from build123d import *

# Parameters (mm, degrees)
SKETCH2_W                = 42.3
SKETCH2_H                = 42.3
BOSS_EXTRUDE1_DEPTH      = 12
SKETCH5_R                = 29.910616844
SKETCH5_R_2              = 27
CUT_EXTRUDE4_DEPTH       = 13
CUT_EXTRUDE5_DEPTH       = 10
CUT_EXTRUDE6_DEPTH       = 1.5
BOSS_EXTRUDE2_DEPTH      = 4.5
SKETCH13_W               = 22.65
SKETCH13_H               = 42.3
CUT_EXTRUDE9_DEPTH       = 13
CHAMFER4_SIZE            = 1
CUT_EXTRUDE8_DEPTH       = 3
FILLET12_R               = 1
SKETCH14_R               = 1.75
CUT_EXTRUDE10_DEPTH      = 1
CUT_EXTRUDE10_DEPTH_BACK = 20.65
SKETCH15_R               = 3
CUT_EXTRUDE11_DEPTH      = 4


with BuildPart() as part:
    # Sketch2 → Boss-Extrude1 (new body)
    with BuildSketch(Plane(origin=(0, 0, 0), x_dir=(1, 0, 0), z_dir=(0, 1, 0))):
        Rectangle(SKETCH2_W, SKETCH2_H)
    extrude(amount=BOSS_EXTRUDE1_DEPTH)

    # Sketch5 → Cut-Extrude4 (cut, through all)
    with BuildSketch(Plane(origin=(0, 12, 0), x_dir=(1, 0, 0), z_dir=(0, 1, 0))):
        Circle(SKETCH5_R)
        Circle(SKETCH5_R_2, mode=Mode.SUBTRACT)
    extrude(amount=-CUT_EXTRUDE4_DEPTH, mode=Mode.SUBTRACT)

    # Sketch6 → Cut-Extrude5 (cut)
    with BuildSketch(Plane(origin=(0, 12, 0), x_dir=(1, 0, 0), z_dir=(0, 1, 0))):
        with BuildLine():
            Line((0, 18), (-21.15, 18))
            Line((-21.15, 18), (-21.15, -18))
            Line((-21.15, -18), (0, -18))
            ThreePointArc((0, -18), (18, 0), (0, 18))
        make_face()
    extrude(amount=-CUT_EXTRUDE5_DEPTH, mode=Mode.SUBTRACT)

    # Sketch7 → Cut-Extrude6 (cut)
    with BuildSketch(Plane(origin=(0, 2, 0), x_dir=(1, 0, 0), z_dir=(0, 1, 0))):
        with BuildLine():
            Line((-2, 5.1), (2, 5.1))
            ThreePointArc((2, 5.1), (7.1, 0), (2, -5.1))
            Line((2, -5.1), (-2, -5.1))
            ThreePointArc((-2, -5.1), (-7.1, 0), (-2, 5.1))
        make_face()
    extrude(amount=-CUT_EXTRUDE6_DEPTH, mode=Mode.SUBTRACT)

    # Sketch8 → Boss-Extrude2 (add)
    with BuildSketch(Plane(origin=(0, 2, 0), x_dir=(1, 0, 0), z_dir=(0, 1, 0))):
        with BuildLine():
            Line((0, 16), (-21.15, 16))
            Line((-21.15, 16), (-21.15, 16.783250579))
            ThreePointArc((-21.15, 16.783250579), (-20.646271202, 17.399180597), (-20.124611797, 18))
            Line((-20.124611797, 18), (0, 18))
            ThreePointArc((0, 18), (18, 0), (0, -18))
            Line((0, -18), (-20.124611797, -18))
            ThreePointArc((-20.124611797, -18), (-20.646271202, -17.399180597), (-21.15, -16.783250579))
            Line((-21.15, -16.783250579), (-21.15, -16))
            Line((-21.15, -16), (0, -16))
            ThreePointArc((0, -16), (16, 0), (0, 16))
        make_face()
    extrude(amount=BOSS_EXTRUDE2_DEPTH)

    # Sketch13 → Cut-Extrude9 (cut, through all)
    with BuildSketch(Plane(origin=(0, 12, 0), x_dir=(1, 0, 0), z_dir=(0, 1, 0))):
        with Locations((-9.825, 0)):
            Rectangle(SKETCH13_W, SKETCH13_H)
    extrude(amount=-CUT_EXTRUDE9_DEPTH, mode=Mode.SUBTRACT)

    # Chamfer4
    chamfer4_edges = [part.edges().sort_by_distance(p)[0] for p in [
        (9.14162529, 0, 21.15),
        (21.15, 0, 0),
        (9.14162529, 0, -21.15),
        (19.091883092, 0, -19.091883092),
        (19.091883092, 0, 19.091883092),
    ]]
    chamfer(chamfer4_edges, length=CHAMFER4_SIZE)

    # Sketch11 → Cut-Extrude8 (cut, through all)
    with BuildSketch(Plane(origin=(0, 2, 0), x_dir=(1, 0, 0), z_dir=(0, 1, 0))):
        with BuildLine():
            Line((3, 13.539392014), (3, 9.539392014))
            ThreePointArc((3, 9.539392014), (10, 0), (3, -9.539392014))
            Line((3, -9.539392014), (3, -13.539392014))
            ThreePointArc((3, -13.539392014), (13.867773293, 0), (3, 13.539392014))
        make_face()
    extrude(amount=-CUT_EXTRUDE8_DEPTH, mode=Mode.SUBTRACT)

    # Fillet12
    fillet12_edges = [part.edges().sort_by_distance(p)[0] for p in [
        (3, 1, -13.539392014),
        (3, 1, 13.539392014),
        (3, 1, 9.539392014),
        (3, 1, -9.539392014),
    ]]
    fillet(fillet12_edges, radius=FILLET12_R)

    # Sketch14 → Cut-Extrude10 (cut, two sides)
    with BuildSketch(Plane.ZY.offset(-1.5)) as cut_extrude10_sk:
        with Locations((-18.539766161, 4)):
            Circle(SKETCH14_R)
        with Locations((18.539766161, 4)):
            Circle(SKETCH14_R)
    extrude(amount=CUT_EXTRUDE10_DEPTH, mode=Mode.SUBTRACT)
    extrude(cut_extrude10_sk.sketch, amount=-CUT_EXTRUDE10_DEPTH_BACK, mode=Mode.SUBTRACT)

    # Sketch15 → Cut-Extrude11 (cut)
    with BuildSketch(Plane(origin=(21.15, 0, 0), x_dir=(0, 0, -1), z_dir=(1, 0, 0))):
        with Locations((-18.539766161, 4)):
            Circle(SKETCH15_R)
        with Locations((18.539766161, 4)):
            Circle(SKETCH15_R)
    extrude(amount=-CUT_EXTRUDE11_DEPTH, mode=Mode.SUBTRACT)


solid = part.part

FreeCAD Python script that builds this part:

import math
import FreeCAD as App
import Part
import Sketcher
Q = App.Units.Quantity


def edges_at(feature, points):
    """Names of the edges that pass closest to the given points."""
    edges = feature.Shape.Edges
    near = lambda p: min(range(len(edges)), key=lambda i: edges[i].distToShape(Part.Vertex(*p))[0])
    return sorted({f"Edge{near(p) + 1}" for p in points})


def add_polygon(sketch, points):
    """Adds a closed chain of lines whose ends are joined by coincident constraints."""
    first, n = sketch.GeometryCount, len(points)
    for a, b in zip(points, points[1:] + points[:1]):
        sketch.addGeometry(Part.LineSegment(App.Vector(*a, 0), App.Vector(*b, 0)), False)
    for i in range(n):
        sketch.addConstraint(Sketcher.Constraint("Coincident", first + i, 2, first + (i + 1) % n, 1))

doc = App.newDocument("Part")
params = doc.addObject("Spreadsheet::Sheet", "Params")
for row, (alias, value) in enumerate([
    ("sketch1_width", "42.3 mm"),
    ("pad1_length", "12 mm"),
    ("sketch2_diameter", "54 mm"),
    ("sketch3_radius", "18 mm"),
    ("sketch3_width", "21.15 mm"),
    ("pocket2_length", "10 mm"),
    ("sketch4_radius", "5.1 mm"),
    ("sketch4_width", "4 mm"),
    ("pocket3_length", "1.5 mm"),
    ("sketch5_radius", "16 mm"),
    ("sketch5_radius2", "27 mm"),
    ("sketch5_radius3", "18 mm"),
    ("sketch5_width", "21.15 mm"),
    ("pad2_length", "4.5 mm"),
    ("sketch6_height", "42.3 mm"),
    ("sketch6_width", "22.65 mm"),
    ("chamfer_size", "1 mm"),
    ("sketch7_radius", "10 mm"),
    ("sketch7_height", "4 mm"),
    ("fillet_radius", "1 mm"),
    ("sketch8_diameter", "3.5 mm"),
    ("sketch9_diameter", "6 mm"),
    ("pocket7_length", "4 mm"),
], start=1):
    params.set(f"A{row}", alias)
    params.set(f"B{row}", "=" + value)
    params.setAlias(f"B{row}", alias)

body = doc.addObject("PartDesign::Body", "Body")

# Sketch on XZ plane
sketch1 = body.newObject("Sketcher::SketchObject", "Sketch")
sketch1.AttachmentSupport = (doc.getObject("XZ_Plane"), [""])
sketch1.MapMode = "FlatFace"
add_polygon(sketch1, [(-21.15, -21.15), (-21.15, 21.15), (21.15, 21.15), (21.15, -21.15)])  # lines 0-3
sketch1.addConstraint([
    Sketcher.Constraint("Vertical", 0),
    Sketcher.Constraint("Horizontal", 1),
    Sketcher.Constraint("Vertical", 2),
    Sketcher.Constraint("Horizontal", 3),
    Sketcher.Constraint("Symmetric", 0, 2, 2, 2, -1, 1),
    Sketcher.Constraint("Equal", 3, 0),
    Sketcher.Constraint("DistanceX", 1, 1, 1, 2, Q("42.3 mm")),
])
sketch1.setExpression("Constraints[10]", "Params.sketch1_width")
pad1 = body.newObject("PartDesign::Pad", "Pad")
pad1.Profile = sketch1
pad1.setExpression("Length", "Params.pad1_length")
pad1.Reversed = True

# Sketch on XZ plane
sketch2 = body.newObject("Sketcher::SketchObject", "Sketch001")
sketch2.AttachmentSupport = (doc.getObject("XZ_Plane"), [""])
sketch2.MapMode = "FlatFace"
sketch2.AttachmentOffset = App.Placement(App.Vector(0, 0, -12), App.Rotation())
sketch2.addGeometry([
    Part.Circle(App.Vector(0, 0, 0), App.Vector(0, 0, 1), 29.910617),
    Part.Circle(App.Vector(0, 0, 0), App.Vector(0, 0, 1), 27),
], False)
sketch2.addConstraint([
    Sketcher.Constraint("Coincident", 0, 3, -1, 1),
    Sketcher.Constraint("Coincident", 1, 3, -1, 1),
    Sketcher.Constraint("Diameter", 1, Q("54 mm")),
    Sketcher.Constraint("Diameter", 0, Q("59.821234 mm")),
])
sketch2.setExpression("Constraints[2]", "Params.sketch2_diameter")
pocket1 = body.newObject("PartDesign::Pocket", "Pocket")
pocket1.Profile = sketch2
pocket1.Type = "ThroughAll"
pocket1.Reversed = True

# Sketch on XZ plane
sketch3 = body.newObject("Sketcher::SketchObject", "Sketch002")
sketch3.AttachmentSupport = (doc.getObject("XZ_Plane"), [""])
sketch3.MapMode = "FlatFace"
sketch3.AttachmentOffset = App.Placement(App.Vector(0, 0, -12), App.Rotation())
sketch3.addGeometry([
    Part.LineSegment(App.Vector(0, -18, 0), App.Vector(-21.15, -18, 0)),
    Part.LineSegment(App.Vector(-21.15, -18, 0), App.Vector(-21.15, 18, 0)),
    Part.LineSegment(App.Vector(-21.15, 18, 0), App.Vector(0, 18, 0)),
    Part.ArcOfCircle(Part.Circle(App.Vector(0, 0, 0), App.Vector(0, 0, 1), 18), math.radians(-90), math.radians(90)),
], False)
sketch3.addConstraint([
    Sketcher.Constraint("Coincident", 0, 2, 1, 1),
    Sketcher.Constraint("Coincident", 1, 2, 2, 1),
    Sketcher.Constraint("Tangent", 2, 2, 3, 2),
    Sketcher.Constraint("Tangent", 3, 1, 0, 1),
    Sketcher.Constraint("Horizontal", 0),
    Sketcher.Constraint("Vertical", 1),
    Sketcher.Constraint("Horizontal", 2),
    Sketcher.Constraint("Coincident", 3, 3, -1, 1),
    Sketcher.Constraint("Radius", 3, Q("18 mm")),
    Sketcher.Constraint("DistanceX", 0, 2, 0, 1, Q("21.15 mm")),
])
sketch3.setExpression("Constraints[8]", "Params.sketch3_radius")
sketch3.setExpression("Constraints[9]", "Params.sketch3_width")
pocket2 = body.newObject("PartDesign::Pocket", "Pocket001")
pocket2.Profile = sketch3
pocket2.setExpression("Length", "Params.pocket2_length")
pocket2.Reversed = True

# Sketch on XZ plane
sketch4 = body.newObject("Sketcher::SketchObject", "Sketch003")
sketch4.AttachmentSupport = (doc.getObject("XZ_Plane"), [""])
sketch4.MapMode = "FlatFace"
sketch4.AttachmentOffset = App.Placement(App.Vector(0, 0, -2), App.Rotation())
sketch4.addGeometry([
    Part.LineSegment(App.Vector(2, -5.1, 0), App.Vector(-2, -5.1, 0)),
    Part.ArcOfCircle(Part.Circle(App.Vector(-2, 0, 0), App.Vector(0, 0, 1), 5.1), math.radians(90), math.radians(270)),
    Part.LineSegment(App.Vector(-2, 5.1, 0), App.Vector(2, 5.1, 0)),
    Part.ArcOfCircle(Part.Circle(App.Vector(2, 0, 0), App.Vector(0, 0, 1), 5.1), math.radians(-90), math.radians(90)),
], False)
sketch4.addConstraint([
    Sketcher.Constraint("Tangent", 0, 2, 1, 2),
    Sketcher.Constraint("Tangent", 1, 1, 2, 1),
    Sketcher.Constraint("Tangent", 2, 2, 3, 2),
    Sketcher.Constraint("Tangent", 3, 1, 0, 1),
    Sketcher.Constraint("Horizontal", 0),
    Sketcher.Constraint("Horizontal", 2),
    Sketcher.Constraint("Symmetric", 1, 3, 3, 3, -1, 1),
    Sketcher.Constraint("Radius", 1, Q("5.1 mm")),
    Sketcher.Constraint("DistanceX", 0, 2, 0, 1, Q("4 mm")),
])
sketch4.setExpression("Constraints[7]", "Params.sketch4_radius")
sketch4.setExpression("Constraints[8]", "Params.sketch4_width")
pocket3 = body.newObject("PartDesign::Pocket", "Pocket002")
pocket3.Profile = sketch4
pocket3.setExpression("Length", "Params.pocket3_length")
pocket3.Reversed = True

# Sketch on XZ plane
sketch5 = body.newObject("Sketcher::SketchObject", "Sketch004")
sketch5.AttachmentSupport = (doc.getObject("XZ_Plane"), [""])
sketch5.MapMode = "FlatFace"
sketch5.AttachmentOffset = App.Placement(App.Vector(0, 0, -2), App.Rotation())
sketch5.addGeometry([
    Part.LineSegment(App.Vector(-21.15, -16, 0), App.Vector(0, -16, 0)),  # 0
    Part.ArcOfCircle(Part.Circle(App.Vector(0, 0, 0), App.Vector(0, 0, 1), 16), math.radians(-90), math.radians(90)),  # 1
    Part.LineSegment(App.Vector(0, 16, 0), App.Vector(-21.15, 16, 0)),  # 2
    Part.LineSegment(App.Vector(-21.15, 16, 0), App.Vector(-21.15, 16.783251, 0)),  # 3
    Part.ArcOfCircle(Part.Circle(App.Vector(0, 0, 0), App.Vector(0, 0, 1), 27), math.radians(138.189685), math.radians(141.566794)),  # 4
    Part.LineSegment(App.Vector(-20.124612, 18, 0), App.Vector(0, 18, 0)),  # 5
    Part.ArcOfCircle(Part.Circle(App.Vector(0, 0, 0), App.Vector(0, 0, 1), 18), math.radians(-90), math.radians(90)),  # 6
    Part.LineSegment(App.Vector(0, -18, 0), App.Vector(-20.124612, -18, 0)),  # 7
    Part.ArcOfCircle(Part.Circle(App.Vector(0, 0, 0), App.Vector(0, 0, 1), 27), math.radians(-141.566794), math.radians(-138.189685)),  # 8
    Part.LineSegment(App.Vector(-21.15, -16.783251, 0), App.Vector(-21.15, -16, 0)),  # 9
], False)
sketch5.addConstraint([
    Sketcher.Constraint("Tangent", 0, 2, 1, 1),
    Sketcher.Constraint("Tangent", 1, 2, 2, 1),
    Sketcher.Constraint("Coincident", 2, 2, 3, 1),
    Sketcher.Constraint("Coincident", 3, 2, 4, 2),
    Sketcher.Constraint("Coincident", 4, 1, 5, 1),
    Sketcher.Constraint("Tangent", 5, 2, 6, 2),
    Sketcher.Constraint("Tangent", 6, 1, 7, 1),
    Sketcher.Constraint("Coincident", 7, 2, 8, 2),
    Sketcher.Constraint("Coincident", 8, 1, 9, 1),
    Sketcher.Constraint("Coincident", 9, 2, 0, 1),
    Sketcher.Constraint("Horizontal", 0),
    Sketcher.Constraint("Horizontal", 2),
    Sketcher.Constraint("Vertical", 3),
    Sketcher.Constraint("Horizontal", 5),
    Sketcher.Constraint("Horizontal", 7),
    Sketcher.Constraint("Vertical", 9),
    Sketcher.Constraint("Coincident", 1, 3, -1, 1),
    Sketcher.Constraint("Coincident", 4, 3, -1, 1),
    Sketcher.Constraint("Coincident", 6, 3, -1, 1),
    Sketcher.Constraint("Coincident", 8, 3, -1, 1),
    Sketcher.Constraint("Equal", 4, 8),
    Sketcher.Constraint("Vertical", 3, 2, 8, 1),
    Sketcher.Constraint("Radius", 1, Q("16 mm")),
    Sketcher.Constraint("Radius", 4, Q("27 mm")),
    Sketcher.Constraint("Radius", 6, Q("18 mm")),
    Sketcher.Constraint("DistanceX", 0, 1, 0, 2, Q("21.15 mm")),
])
sketch5.setExpression("Constraints[22]", "Params.sketch5_radius")
sketch5.setExpression("Constraints[23]", "Params.sketch5_radius2")
sketch5.setExpression("Constraints[24]", "Params.sketch5_radius3")
sketch5.setExpression("Constraints[25]", "Params.sketch5_width")
pad2 = body.newObject("PartDesign::Pad", "Pad001")
pad2.Profile = sketch5
pad2.setExpression("Length", "Params.pad2_length")
pad2.Reversed = True

# Sketch on XZ plane
sketch6 = body.newObject("Sketcher::SketchObject", "Sketch005")
sketch6.AttachmentSupport = (doc.getObject("XZ_Plane"), [""])
sketch6.MapMode = "FlatFace"
sketch6.AttachmentOffset = App.Placement(App.Vector(0, 0, -12), App.Rotation())
add_polygon(sketch6, [(-21.15, -21.15), (-21.15, 21.15), (1.5, 21.15), (1.5, -21.15)])  # lines 0-3
sketch6.addConstraint([
    Sketcher.Constraint("Vertical", 0),
    Sketcher.Constraint("Horizontal", 1),
    Sketcher.Constraint("Vertical", 2),
    Sketcher.Constraint("Horizontal", 3),
    Sketcher.Constraint("DistanceY", 0, 1, 0, 2, Q("42.3 mm")),
    Sketcher.Constraint("DistanceX", 1, 1, 1, 2, Q("22.65 mm")),
    Sketcher.Constraint("DistanceX", -1, 1, 1, 2, Q("1.5 mm")),
    Sketcher.Constraint("DistanceY", -1, 1, 0, 2, Q("21.15 mm")),
])
sketch6.setExpression("Constraints[8]", "Params.sketch6_height")
sketch6.setExpression("Constraints[9]", "Params.sketch6_width")
pocket4 = body.newObject("PartDesign::Pocket", "Pocket003")
pocket4.Profile = sketch6
pocket4.Type = "ThroughAll"
pocket4.Reversed = True
doc.recompute()

chamfer = body.newObject("PartDesign::Chamfer", "Chamfer")
chamfer.Base = (pocket4, edges_at(pocket4, [
    (9.142, 0, 21.15),
    (21.15, 0, 0),
    (9.142, 0, -21.15),
    (19.092, 0, -19.092),
    (19.092, 0, 19.092),
]))
chamfer.setExpression("Size", "Params.chamfer_size")

# Sketch on XZ plane
sketch7 = body.newObject("Sketcher::SketchObject", "Sketch006")
sketch7.AttachmentSupport = (doc.getObject("XZ_Plane"), [""])
sketch7.MapMode = "FlatFace"
sketch7.AttachmentOffset = App.Placement(App.Vector(0, 0, -2), App.Rotation())
sketch7.addGeometry([
    Part.LineSegment(App.Vector(3, -13.539392, 0), App.Vector(3, -9.539392, 0)),
    Part.ArcOfCircle(Part.Circle(App.Vector(0, 0, 0), App.Vector(0, 0, 1), 10), math.radians(-72.542397), math.radians(72.542397)),
    Part.LineSegment(App.Vector(3, 9.539392, 0), App.Vector(3, 13.539392, 0)),
    Part.ArcOfCircle(Part.Circle(App.Vector(0, 0, 0), App.Vector(0, 0, 1), 13.867773), math.radians(-77.506498), math.radians(77.506498)),
], False)
sketch7.addConstraint([
    Sketcher.Constraint("Coincident", 0, 2, 1, 1),
    Sketcher.Constraint("Coincident", 1, 2, 2, 1),
    Sketcher.Constraint("Coincident", 2, 2, 3, 2),
    Sketcher.Constraint("Coincident", 3, 1, 0, 1),
    Sketcher.Constraint("Vertical", 0),
    Sketcher.Constraint("Vertical", 2),
    Sketcher.Constraint("Coincident", 1, 3, -1, 1),
    Sketcher.Constraint("Coincident", 3, 3, -1, 1),
    Sketcher.Constraint("Vertical", 0, 2, 1, 2),
    Sketcher.Constraint("Radius", 1, Q("10 mm")),
    Sketcher.Constraint("DistanceY", 0, 1, 0, 2, Q("4 mm")),
    Sketcher.Constraint("DistanceX", -1, 1, 0, 2, Q("3 mm")),
])
sketch7.setExpression("Constraints[9]", "Params.sketch7_radius")
sketch7.setExpression("Constraints[10]", "Params.sketch7_height")
pocket5 = body.newObject("PartDesign::Pocket", "Pocket004")
pocket5.Profile = sketch7
pocket5.Type = "ThroughAll"
pocket5.Reversed = True
doc.recompute()

fillet = body.newObject("PartDesign::Fillet", "Fillet")
fillet.Base = (pocket5, edges_at(pocket5, [
    (3, 1, -13.539),
    (3, 1, 13.539),
    (3, 1, 9.539),
    (3, 1, -9.539),
]))
fillet.setExpression("Radius", "Params.fillet_radius")

# Sketch on YZ plane
sketch8 = body.newObject("Sketcher::SketchObject", "Sketch007")
sketch8.AttachmentSupport = (doc.getObject("YZ_Plane"), [""])
sketch8.MapMode = "FlatFace"
sketch8.AttachmentOffset = App.Placement(App.Vector(0, 0, 1.5), App.Rotation())
sketch8.addGeometry([
    Part.Circle(App.Vector(4, -18.539766, 0), App.Vector(0, 0, 1), 1.75),
    Part.Circle(App.Vector(4, 18.539766, 0), App.Vector(0, 0, 1), 1.75),
], False)
sketch8.addConstraint([
    Sketcher.Constraint("Equal", 0, 1),
    Sketcher.Constraint("Symmetric", 0, 3, 1, 3, -1),
    Sketcher.Constraint("Diameter", 0, Q("3.5 mm")),
    Sketcher.Constraint("DistanceX", -1, 1, 0, 3, Q("4 mm")),
    Sketcher.Constraint("DistanceY", 0, 3, -1, 1, Q("18.539766 mm")),
])
sketch8.setExpression("Constraints[2]", "Params.sketch8_diameter")
pocket6 = body.newObject("PartDesign::Pocket", "Pocket005")
pocket6.Profile = sketch8
pocket6.Type = "ThroughAll"
pocket6.Midplane = True

# Sketch on YZ plane
sketch9 = body.newObject("Sketcher::SketchObject", "Sketch008")
sketch9.AttachmentSupport = (doc.getObject("YZ_Plane"), [""])
sketch9.MapMode = "FlatFace"
sketch9.AttachmentOffset = App.Placement(App.Vector(0, 0, 21.15), App.Rotation())
sketch9.addGeometry([
    Part.Circle(App.Vector(4, 18.539766, 0), App.Vector(0, 0, 1), 3),
    Part.Circle(App.Vector(4, -18.539766, 0), App.Vector(0, 0, 1), 3),
], False)
sketch9.addConstraint([
    Sketcher.Constraint("Equal", 0, 1),
    Sketcher.Constraint("Symmetric", 0, 3, 1, 3, -1),
    Sketcher.Constraint("Diameter", 0, Q("6 mm")),
    Sketcher.Constraint("DistanceX", -1, 1, 0, 3, Q("4 mm")),
    Sketcher.Constraint("DistanceY", -1, 1, 0, 3, Q("18.539766 mm")),
])
sketch9.setExpression("Constraints[2]", "Params.sketch9_diameter")
pocket7 = body.newObject("PartDesign::Pocket", "Pocket006")
pocket7.Profile = sketch9
pocket7.setExpression("Length", "Params.pocket7_length")

doc.recompute()
